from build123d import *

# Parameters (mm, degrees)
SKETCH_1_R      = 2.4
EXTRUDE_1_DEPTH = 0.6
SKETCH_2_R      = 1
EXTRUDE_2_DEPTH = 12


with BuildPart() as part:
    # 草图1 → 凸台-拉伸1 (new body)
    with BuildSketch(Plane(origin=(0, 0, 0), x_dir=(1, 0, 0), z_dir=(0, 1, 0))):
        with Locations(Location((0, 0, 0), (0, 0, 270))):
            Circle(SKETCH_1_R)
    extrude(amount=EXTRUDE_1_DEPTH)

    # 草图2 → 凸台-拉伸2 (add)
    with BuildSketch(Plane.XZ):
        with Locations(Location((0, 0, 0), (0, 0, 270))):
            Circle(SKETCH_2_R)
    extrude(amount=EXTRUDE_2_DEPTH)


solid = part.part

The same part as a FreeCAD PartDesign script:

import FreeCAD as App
import Part
import Sketcher
from FreeCAD import Vector

doc = App.newDocument("Part")
body = doc.addObject("PartDesign::Body", "Body")

# Sketch on XZ plane
sketch1 = body.newObject("Sketcher::SketchObject", "Sketch")
sketch1.AttachmentSupport = (doc.getObject("XZ_Plane"), [""])
sketch1.MapMode = "FlatFace"
sketch1.addGeometry(Part.Circle(Vector(0, 0, 0), Vector(0, 0, 1), 2.4), False)
sketch1.addConstraint([
    Sketcher.Constraint("Coincident", 0, 3, -1, 1),
    Sketcher.Constraint("Diameter", 0, 4.8),
])
pad1 = body.newObject("PartDesign::Pad", "Pad")
pad1.Profile = sketch1
pad1.Length = 0.6
pad1.Reversed = True

# Sketch on XZ plane
sketch2 = body.newObject("Sketcher::SketchObject", "Sketch001")
sketch2.AttachmentSupport = (doc.getObject("XZ_Plane"), [""])
sketch2.MapMode = "FlatFace"
sketch2.addGeometry(Part.Circle(Vector(0, 0, 0), Vector(0, 0, 1), 1), False)
sketch2.addConstraint([
    Sketcher.Constraint("Coincident", 0, 3, -1, 1),
    Sketcher.Constraint("Diameter", 0, 2.0),
])
pad2 = body.newObject("PartDesign::Pad", "Pad001")
pad2.Profile = sketch2
pad2.Length = 12

doc.recompute()
